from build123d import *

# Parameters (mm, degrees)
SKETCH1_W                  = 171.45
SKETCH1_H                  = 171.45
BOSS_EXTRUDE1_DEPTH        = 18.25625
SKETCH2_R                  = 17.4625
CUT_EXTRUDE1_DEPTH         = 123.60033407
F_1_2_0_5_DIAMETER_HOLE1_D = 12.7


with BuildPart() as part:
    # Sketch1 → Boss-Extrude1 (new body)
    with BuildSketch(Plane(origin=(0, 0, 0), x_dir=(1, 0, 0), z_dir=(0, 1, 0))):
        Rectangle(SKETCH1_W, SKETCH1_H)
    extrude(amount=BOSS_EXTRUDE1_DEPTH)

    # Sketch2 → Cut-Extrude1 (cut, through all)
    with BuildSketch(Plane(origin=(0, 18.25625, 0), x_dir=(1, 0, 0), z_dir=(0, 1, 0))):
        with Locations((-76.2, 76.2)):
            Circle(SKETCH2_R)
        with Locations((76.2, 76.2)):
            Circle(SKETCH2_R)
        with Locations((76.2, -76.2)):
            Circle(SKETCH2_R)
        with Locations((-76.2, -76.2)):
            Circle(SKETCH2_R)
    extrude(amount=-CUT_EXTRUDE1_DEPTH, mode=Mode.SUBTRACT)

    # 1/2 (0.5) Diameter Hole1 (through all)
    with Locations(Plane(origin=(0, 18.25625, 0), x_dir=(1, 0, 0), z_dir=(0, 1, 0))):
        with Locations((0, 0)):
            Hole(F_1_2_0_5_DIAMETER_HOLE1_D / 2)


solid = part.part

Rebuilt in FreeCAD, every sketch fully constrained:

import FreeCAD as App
import Part
import Sketcher

V = App.Vector
Q = App.Units.Quantity


def add_polygon(sketch, points):
    """Adds a closed chain of lines whose ends are joined by coincident constraints."""
    first, n = sketch.GeometryCount, len(points)
    for a, b in zip(points, points[1:] + points[:1]):
        sketch.addGeometry(Part.LineSegment(App.Vector(*a, 0), App.Vector(*b, 0)), False)
    for i in range(n):
        sketch.addConstraint(Sketcher.Constraint("Coincident", first + i, 2, first + (i + 1) % n, 1))

doc = App.newDocument("Part")
params = doc.addObject("Spreadsheet::Sheet", "Params")
for row, (alias, value) in enumerate([
    ("sketch1_width", "6.75 in"),
    ("pad1_length", "0.71875 in"),
    ("sketch2_diameter", "1.375 in"),
    ("sketch3_diameter", "0.5 in"),
    ("hole_diameter", "0.5 in"),
], start=1):
    params.set(f"A{row}", alias)
    params.set(f"B{row}", "=" + value)
    params.setAlias(f"B{row}", alias)

body = doc.addObject("PartDesign::Body", "Body")

# Sketch on XZ plane
sketch1 = doc.addObject("Sketcher::SketchObject", "Sketch")
body.addObject(sketch1)
sketch1.AttachmentSupport = (doc.XZ_Plane, [""])
sketch1.MapMode = "FlatFace"
add_polygon(sketch1, [(-86, -86), (-86, 86), (86, 86), (86, -86)])  # lines 0-3
sketch1.addConstraint([
    Sketcher.Constraint("Vertical", 0),
    Sketcher.Constraint("Horizontal", 1),
    Sketcher.Constraint("Vertical", 2),
    Sketcher.Constraint("Horizontal", 3),
    Sketcher.Constraint("Symmetric", 0, 2, 2, 2, -1, 1),
    Sketcher.Constraint("Equal", 3, 0),
    Sketcher.Constraint("DistanceX", 1, 1, 1, 2, Q("6.75 in")),
])
sketch1.setExpression("Constraints[10]", "Params.sketch1_width")
pad1 = doc.addObject("PartDesign::Pad", "Pad")
body.addObject(pad1)
pad1.Profile = sketch1
pad1.setExpression("Length", "Params.pad1_length")
pad1.Reversed = True

# Sketch on XZ plane
sketch2 = doc.addObject("Sketcher::SketchObject", "Sketch001")
body.addObject(sketch2)
sketch2.AttachmentSupport = (doc.XZ_Plane, [""])
sketch2.MapMode = "FlatFace"
sketch2.AttachmentOffset = App.Placement(V(0, 0, -0.71875 * 25.4), App.Rotation())
sketch2.addGeometry([
    Part.Circle(V(-76, -76, 0), V(0, 0, 1), 17),
    Part.Circle(V(76, -76, 0), V(0, 0, 1), 17),
    Part.Circle(V(76, 76, 0), V(0, 0, 1), 17),
    Part.Circle(V(-76, 76, 0), V(0, 0, 1), 17),
], False)
sketch2.addConstraint([
    Sketcher.Constraint("Equal", 0, 1),
    Sketcher.Constraint("Equal", 1, 2),
    Sketcher.Constraint("Equal", 2, 3),
    Sketcher.Constraint("Symmetric", 0, 3, 2, 3, -1, 1),
    Sketcher.Constraint("Symmetric", 1, 3, 3, 3, -1, 1),
    Sketcher.Constraint("Symmetric", 0, 3, 1, 3, -2),
    Sketcher.Constraint("Diameter", 0, Q("1.375 in")),
    Sketcher.Constraint("DistanceX", 0, 3, -1, 1, Q("3 in")),
    Sketcher.Constraint("DistanceY", 0, 3, -1, 1, Q("3 in")),
])
sketch2.setExpression("Constraints[6]", "Params.sketch2_diameter")
pocket1 = doc.addObject("PartDesign::Pocket", "Pocket")
body.addObject(pocket1)
pocket1.Profile = sketch2
pocket1.Type = "ThroughAll"
pocket1.Reversed = True

# Sketch on XZ plane
sketch3 = doc.addObject("Sketcher::SketchObject", "Sketch002")
body.addObject(sketch3)
sketch3.AttachmentSupport = (doc.XZ_Plane, [""])
sketch3.MapMode = "FlatFace"
sketch3.AttachmentOffset = App.Placement(V(0, 0, -0.71875 * 25.4), App.Rotation())
sketch3.addGeometry(Part.Circle(V(0, 0, 0), V(0, 0, 1), 6), False)
sketch3.addConstraint([
    Sketcher.Constraint("Coincident", 0, 3, -1, 1),
    Sketcher.Constraint("Diameter", 0, Q("0.5 in")),
])
sketch3.setExpression("Constraints[1]", "Params.sketch3_diameter")
doc.recompute()
hole = doc.addObject("PartDesign::Hole", "Hole")
body.addObject(hole)
hole.Profile = sketch3
hole.ThreadType = "None"
hole.setExpression("Diameter", "Params.hole_diameter")
hole.DepthType = "ThroughAll"
hole.Reversed = True

doc.recompute()
